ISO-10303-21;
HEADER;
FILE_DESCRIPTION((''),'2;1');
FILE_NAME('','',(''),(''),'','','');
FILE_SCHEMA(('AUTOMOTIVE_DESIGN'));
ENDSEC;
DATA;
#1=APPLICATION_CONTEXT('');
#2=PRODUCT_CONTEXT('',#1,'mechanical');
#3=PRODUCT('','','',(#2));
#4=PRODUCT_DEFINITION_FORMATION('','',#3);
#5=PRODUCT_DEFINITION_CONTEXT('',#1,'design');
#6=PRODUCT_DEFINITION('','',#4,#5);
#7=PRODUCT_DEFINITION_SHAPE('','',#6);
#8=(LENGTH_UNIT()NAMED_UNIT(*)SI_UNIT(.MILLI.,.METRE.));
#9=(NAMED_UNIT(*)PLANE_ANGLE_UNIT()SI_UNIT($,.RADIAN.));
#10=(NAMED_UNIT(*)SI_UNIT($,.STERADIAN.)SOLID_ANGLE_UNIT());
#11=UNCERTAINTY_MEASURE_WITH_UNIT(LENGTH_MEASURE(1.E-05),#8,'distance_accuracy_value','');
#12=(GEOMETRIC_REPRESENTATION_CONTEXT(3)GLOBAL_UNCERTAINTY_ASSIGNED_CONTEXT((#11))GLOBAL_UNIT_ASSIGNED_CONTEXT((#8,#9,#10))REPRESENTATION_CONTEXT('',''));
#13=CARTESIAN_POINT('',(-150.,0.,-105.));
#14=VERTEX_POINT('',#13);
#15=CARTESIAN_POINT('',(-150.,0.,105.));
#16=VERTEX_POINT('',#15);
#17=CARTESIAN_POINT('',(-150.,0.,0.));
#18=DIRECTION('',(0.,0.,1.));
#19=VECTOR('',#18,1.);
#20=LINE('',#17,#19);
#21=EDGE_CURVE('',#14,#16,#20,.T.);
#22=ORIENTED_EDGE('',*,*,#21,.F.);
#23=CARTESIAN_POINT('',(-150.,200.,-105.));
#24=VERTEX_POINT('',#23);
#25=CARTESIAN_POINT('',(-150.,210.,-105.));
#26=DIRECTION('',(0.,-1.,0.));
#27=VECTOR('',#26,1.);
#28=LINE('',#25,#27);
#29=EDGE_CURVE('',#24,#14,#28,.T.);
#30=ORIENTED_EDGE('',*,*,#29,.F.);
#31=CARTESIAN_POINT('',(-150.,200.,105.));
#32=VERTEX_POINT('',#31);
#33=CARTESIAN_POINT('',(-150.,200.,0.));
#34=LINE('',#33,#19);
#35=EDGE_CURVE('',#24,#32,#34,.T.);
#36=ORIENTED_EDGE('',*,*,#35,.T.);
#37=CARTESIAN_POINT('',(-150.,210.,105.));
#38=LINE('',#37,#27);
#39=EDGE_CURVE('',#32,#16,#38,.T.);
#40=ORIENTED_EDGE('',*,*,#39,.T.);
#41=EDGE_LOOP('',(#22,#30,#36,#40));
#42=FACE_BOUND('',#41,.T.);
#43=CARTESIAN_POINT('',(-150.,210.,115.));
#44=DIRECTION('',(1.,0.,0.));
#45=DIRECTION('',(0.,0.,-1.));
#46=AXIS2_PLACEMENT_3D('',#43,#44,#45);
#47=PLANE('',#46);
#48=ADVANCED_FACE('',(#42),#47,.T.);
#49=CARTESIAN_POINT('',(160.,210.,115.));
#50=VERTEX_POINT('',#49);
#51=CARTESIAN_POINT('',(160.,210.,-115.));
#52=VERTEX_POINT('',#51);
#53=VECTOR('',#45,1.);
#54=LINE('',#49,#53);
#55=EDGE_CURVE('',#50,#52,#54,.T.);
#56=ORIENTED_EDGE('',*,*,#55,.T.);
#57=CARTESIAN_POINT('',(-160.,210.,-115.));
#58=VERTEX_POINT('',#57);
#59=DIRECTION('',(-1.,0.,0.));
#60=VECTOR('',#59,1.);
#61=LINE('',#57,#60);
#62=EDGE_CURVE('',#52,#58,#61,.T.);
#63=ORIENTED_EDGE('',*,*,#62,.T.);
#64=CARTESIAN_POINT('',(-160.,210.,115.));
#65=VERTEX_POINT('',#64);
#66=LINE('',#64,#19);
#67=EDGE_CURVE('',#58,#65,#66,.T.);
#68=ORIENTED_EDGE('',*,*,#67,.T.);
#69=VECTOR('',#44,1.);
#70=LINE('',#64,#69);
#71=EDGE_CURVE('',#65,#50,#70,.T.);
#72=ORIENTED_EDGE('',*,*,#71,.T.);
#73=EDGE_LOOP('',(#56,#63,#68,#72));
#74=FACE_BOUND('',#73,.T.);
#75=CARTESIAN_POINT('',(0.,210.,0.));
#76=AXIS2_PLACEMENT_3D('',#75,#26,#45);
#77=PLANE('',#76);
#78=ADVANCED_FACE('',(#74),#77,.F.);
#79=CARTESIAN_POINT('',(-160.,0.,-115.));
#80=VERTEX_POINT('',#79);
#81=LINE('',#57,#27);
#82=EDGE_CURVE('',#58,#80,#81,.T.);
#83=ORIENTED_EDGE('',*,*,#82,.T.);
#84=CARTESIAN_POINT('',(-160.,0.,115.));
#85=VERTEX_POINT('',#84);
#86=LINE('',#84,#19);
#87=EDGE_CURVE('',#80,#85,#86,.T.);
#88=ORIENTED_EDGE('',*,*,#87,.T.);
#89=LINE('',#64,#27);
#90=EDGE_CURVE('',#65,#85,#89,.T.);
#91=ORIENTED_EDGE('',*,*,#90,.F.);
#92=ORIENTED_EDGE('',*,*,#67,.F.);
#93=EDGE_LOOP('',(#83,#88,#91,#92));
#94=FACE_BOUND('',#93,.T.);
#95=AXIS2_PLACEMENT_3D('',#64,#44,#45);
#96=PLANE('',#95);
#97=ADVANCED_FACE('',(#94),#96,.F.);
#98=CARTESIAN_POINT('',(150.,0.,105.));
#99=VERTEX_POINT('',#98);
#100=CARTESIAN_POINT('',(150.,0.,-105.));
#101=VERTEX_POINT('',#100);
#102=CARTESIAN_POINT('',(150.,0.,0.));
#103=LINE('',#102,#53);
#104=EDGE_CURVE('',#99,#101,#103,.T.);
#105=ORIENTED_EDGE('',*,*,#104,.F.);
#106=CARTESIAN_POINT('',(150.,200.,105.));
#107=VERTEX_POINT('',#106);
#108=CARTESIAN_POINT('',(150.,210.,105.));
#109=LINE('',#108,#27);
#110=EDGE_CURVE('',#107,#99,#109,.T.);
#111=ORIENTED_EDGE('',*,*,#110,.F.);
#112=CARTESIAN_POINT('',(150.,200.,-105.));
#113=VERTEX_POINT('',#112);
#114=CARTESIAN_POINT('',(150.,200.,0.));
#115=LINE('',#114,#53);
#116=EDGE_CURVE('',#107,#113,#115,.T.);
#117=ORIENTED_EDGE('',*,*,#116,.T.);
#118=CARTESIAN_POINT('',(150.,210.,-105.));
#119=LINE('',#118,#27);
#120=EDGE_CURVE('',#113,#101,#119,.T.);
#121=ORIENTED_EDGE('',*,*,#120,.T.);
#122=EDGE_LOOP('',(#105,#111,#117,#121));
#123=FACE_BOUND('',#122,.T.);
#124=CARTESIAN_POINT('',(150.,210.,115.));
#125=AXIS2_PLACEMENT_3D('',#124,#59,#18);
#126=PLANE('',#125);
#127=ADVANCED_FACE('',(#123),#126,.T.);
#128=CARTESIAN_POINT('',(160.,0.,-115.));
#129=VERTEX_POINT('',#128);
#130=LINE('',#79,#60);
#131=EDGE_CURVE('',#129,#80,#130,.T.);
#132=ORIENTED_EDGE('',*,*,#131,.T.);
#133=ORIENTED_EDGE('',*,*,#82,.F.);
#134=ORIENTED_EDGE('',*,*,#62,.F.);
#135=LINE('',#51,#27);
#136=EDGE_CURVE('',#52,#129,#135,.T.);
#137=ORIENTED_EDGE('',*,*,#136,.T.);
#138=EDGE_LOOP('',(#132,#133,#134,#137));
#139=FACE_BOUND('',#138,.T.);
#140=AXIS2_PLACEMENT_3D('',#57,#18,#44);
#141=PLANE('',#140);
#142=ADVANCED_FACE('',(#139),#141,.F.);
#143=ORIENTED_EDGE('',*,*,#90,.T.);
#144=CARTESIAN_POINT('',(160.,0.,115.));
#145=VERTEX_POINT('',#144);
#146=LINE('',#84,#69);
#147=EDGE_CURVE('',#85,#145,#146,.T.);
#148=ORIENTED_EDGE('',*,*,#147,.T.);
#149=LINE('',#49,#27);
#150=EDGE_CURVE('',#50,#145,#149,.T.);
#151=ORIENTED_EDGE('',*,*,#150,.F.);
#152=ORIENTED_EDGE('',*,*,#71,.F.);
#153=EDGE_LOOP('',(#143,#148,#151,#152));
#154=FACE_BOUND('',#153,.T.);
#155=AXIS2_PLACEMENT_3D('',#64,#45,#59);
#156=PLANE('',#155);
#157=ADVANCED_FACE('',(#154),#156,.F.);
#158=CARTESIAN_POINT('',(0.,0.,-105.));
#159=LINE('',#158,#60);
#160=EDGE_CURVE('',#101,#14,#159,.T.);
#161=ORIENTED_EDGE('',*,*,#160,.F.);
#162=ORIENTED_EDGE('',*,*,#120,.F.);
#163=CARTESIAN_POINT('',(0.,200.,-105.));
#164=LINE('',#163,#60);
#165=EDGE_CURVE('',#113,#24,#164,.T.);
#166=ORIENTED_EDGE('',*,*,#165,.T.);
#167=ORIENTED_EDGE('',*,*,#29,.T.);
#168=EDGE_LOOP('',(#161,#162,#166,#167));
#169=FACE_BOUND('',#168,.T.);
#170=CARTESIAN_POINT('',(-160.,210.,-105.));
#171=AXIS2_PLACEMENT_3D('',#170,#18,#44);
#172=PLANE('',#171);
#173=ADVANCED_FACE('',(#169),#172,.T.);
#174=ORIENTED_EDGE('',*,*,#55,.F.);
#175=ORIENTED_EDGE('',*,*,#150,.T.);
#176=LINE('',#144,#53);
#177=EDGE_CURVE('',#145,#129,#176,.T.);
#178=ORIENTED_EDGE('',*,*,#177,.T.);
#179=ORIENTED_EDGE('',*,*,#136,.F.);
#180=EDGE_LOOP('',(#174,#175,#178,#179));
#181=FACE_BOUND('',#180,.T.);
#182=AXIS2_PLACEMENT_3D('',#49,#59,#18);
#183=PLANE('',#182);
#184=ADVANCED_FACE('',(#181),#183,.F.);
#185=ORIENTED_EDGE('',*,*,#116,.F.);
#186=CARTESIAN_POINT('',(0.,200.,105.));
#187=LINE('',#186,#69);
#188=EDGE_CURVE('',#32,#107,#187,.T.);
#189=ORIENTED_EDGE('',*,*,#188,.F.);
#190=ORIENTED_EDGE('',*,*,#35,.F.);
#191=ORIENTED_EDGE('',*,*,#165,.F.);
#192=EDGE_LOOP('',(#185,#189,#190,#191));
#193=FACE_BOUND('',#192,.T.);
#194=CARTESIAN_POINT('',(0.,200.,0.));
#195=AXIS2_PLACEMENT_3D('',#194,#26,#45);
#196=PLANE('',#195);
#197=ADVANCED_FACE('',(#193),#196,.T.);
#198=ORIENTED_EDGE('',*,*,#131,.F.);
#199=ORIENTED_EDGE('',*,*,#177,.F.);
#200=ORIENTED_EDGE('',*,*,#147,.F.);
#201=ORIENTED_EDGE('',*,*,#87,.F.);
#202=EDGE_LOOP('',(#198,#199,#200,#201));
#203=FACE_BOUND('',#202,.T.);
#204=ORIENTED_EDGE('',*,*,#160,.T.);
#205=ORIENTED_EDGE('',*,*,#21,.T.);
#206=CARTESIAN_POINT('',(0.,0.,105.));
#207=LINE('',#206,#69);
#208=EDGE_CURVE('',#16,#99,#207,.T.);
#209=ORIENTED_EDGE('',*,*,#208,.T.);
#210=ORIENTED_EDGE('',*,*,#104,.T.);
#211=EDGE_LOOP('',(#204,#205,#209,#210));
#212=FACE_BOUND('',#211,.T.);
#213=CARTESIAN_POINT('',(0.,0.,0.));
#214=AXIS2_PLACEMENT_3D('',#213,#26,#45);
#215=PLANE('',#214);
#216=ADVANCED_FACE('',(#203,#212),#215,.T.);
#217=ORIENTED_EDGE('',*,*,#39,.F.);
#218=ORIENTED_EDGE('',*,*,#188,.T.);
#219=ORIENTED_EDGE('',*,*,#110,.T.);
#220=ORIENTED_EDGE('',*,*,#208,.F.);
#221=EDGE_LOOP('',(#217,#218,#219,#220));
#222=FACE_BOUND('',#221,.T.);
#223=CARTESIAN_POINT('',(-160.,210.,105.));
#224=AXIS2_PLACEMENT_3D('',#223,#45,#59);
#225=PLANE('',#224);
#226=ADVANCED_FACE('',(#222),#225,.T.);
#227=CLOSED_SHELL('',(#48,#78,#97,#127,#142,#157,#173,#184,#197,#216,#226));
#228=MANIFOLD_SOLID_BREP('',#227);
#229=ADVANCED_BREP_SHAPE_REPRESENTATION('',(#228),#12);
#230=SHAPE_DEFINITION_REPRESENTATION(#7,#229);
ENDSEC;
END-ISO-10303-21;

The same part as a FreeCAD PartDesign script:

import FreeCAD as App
import Part
import Sketcher

V = App.Vector


def faces_at(feature, points):
    """Names of the faces that lie closest to the given points."""
    faces = feature.Shape.Faces
    near = lambda p: min(range(len(faces)), key=lambda i: faces[i].distToShape(Part.Vertex(*p))[0])
    return sorted({f"Face{near(p) + 1}" for p in points})


def add_polygon(sketch, points):
    """Adds a closed chain of lines whose ends are joined by coincident constraints."""
    first, n = sketch.GeometryCount, len(points)
    for a, b in zip(points, points[1:] + points[:1]):
        sketch.addGeometry(Part.LineSegment(App.Vector(*a, 0), App.Vector(*b, 0)), False)
    for i in range(n):
        sketch.addConstraint(Sketcher.Constraint("Coincident", first + i, 2, first + (i + 1) % n, 1))

doc = App.newDocument("Part")
body = doc.addObject("PartDesign::Body", "Body")

sketch1 = body.newObject("Sketcher::SketchObject", "Sketch")
sketch1.AttachmentSupport = (doc.getObject("XZ_Plane"), [""])
sketch1.MapMode = "FlatFace"
add_polygon(sketch1, [(-160, -115), (-160, 115), (160, 115), (160, -115)])
sketch1.addConstraint([
    Sketcher.Constraint("Vertical", 0),
    Sketcher.Constraint("Horizontal", 1),
    Sketcher.Constraint("Vertical", 2),
    Sketcher.Constraint("Horizontal", 3),
    Sketcher.Constraint("Symmetric", 0, 2, 2, 2, -1, 1),
    Sketcher.Constraint("DistanceX", 1, 1, 1, 2, 320.0),
    Sketcher.Constraint("DistanceY", 0, 1, 0, 2, 230.0),
])
pad1 = body.newObject("PartDesign::Pad", "Pad")
pad1.Profile = sketch1
pad1.Length = 210
pad1.Reversed = True
doc.recompute()

thickness = body.newObject("PartDesign::Thickness", "Thickness")
thickness.Base = (pad1, faces_at(pad1, [(0, 0, 0)]))
thickness.Value = 10
thickness.Reversed = True
thickness.Join = "Intersection"

doc.recompute()
